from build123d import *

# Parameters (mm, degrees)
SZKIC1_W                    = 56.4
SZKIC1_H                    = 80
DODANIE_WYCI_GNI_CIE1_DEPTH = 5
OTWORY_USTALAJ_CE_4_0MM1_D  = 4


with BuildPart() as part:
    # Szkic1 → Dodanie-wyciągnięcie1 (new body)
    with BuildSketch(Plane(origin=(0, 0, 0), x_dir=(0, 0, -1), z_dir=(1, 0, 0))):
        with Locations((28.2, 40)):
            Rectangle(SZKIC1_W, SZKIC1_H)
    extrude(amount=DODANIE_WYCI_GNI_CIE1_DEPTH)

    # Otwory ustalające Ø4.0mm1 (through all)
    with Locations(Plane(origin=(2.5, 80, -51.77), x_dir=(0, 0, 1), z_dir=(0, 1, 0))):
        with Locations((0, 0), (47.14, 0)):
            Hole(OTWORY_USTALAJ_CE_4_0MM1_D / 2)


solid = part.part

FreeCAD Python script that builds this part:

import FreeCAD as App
import Part
import Sketcher
from FreeCAD import Vector

doc = App.newDocument("Part")
body = doc.addObject("PartDesign::Body", "Body")

# Sketch on YZ plane
sketch1 = body.newObject("Sketcher::SketchObject", "Sketch")
sketch1.AttachmentSupport = (doc.getObject("YZ_Plane"), [""])
sketch1.MapMode = "FlatFace"
sketch1.addGeometry([
    Part.LineSegment(Vector(80, 0, 0), Vector(0, 0, 0)),
    Part.LineSegment(Vector(0, 0, 0), Vector(0, -56, 0)),
    Part.LineSegment(Vector(0, -56, 0), Vector(80, -56, 0)),
    Part.LineSegment(Vector(80, -56, 0), Vector(80, 0, 0)),
], False)
sketch1.addConstraint([
    Sketcher.Constraint("Coincident", 0, 2, 1, 1),
    Sketcher.Constraint("Coincident", 1, 2, 2, 1),
    Sketcher.Constraint("Coincident", 2, 2, 3, 1),
    Sketcher.Constraint("Coincident", 3, 2, 0, 1),
    Sketcher.Constraint("Horizontal", 0),
    Sketcher.Constraint("Vertical", 1),
    Sketcher.Constraint("Horizontal", 2),
    Sketcher.Constraint("Vertical", 3),
    Sketcher.Constraint("Coincident", 0, 2, -1, 1),
    Sketcher.Constraint("DistanceX", 0, 2, 0, 1, 80.0),
    Sketcher.Constraint("DistanceY", 1, 2, 1, 1, 56.4),
])
pad1 = body.newObject("PartDesign::Pad", "Pad")
pad1.Profile = sketch1
pad1.Length = 5

# Sketch on XZ plane
sketch2 = body.newObject("Sketcher::SketchObject", "Sketch001")
sketch2.AttachmentSupport = (doc.getObject("XZ_Plane"), [""])
sketch2.MapMode = "FlatFace"
sketch2.AttachmentOffset = App.Placement(Vector(0, 0, -80), App.Rotation())
sketch2.addGeometry([
    Part.Circle(Vector(2.5, -51.8, 0), Vector(0, 0, 1), 2),
    Part.Circle(Vector(2.5, -4.6, 0), Vector(0, 0, 1), 2),
], False)
sketch2.addConstraint([
    Sketcher.Constraint("Equal", 0, 1),
    Sketcher.Constraint("Vertical", 0, 3, 1, 3),
    Sketcher.Constraint("Diameter", 0, 4.0),
    Sketcher.Constraint("DistanceX", -1, 1, 0, 3, 2.5),
    Sketcher.Constraint("DistanceY", 0, 3, -1, 1, 51.77),
    Sketcher.Constraint("DistanceY", 1, 3, -1, 1, 4.63),
])
doc.recompute()
hole = body.newObject("PartDesign::Hole", "Hole")
hole.Profile = sketch2
hole.ThreadType = "None"
hole.Diameter = 4
hole.DepthType = "ThroughAll"
hole.Reversed = True

doc.recompute()
